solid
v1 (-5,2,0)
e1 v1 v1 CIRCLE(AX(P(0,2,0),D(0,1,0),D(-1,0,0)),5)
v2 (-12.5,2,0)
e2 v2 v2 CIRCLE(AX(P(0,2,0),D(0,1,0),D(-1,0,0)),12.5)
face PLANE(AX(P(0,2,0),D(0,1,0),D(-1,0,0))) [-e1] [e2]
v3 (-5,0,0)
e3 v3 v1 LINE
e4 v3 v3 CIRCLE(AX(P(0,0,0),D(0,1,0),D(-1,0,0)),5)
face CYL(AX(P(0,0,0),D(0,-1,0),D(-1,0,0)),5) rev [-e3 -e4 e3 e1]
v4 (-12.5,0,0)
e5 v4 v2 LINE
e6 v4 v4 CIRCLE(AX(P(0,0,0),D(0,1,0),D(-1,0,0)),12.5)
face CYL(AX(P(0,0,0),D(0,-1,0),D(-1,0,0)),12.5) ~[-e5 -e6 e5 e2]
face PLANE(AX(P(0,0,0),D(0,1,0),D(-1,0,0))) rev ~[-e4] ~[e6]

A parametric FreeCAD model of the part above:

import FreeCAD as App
import Part
import Sketcher
Q = App.Units.Quantity

doc = App.newDocument("Part")
params = doc.addObject("Spreadsheet::Sheet", "Params")
for row, (alias, value) in enumerate([
    ("sketch1_diameter", "25 mm"),
    ("sketch1_diameter2", "10 mm"),
    ("pad1_length", "2 mm"),
], start=1):
    params.set(f"A{row}", alias)
    params.set(f"B{row}", "=" + value)
    params.setAlias(f"B{row}", alias)

body = doc.addObject("PartDesign::Body", "Body")

# Sketch on XZ plane
sketch1 = body.newObject("Sketcher::SketchObject", "Sketch")
sketch1.AttachmentSupport = (doc.getObject("XZ_Plane"), [""])
sketch1.MapMode = "FlatFace"
sketch1.addGeometry([
    Part.Circle(App.Vector(0, 0, 0), App.Vector(0, 0, 1), 12),
    Part.Circle(App.Vector(0, 0, 0), App.Vector(0, 0, 1), 5),
], False)
sketch1.addConstraint([
    Sketcher.Constraint("Coincident", 0, 3, -1, 1),
    Sketcher.Constraint("Coincident", 1, 3, -1, 1),
    Sketcher.Constraint("Diameter", 0, Q("25 mm")),
    Sketcher.Constraint("Diameter", 1, Q("10 mm")),
])
sketch1.setExpression("Constraints[2]", "Params.sketch1_diameter")
sketch1.setExpression("Constraints[3]", "Params.sketch1_diameter2")
pad1 = body.newObject("PartDesign::Pad", "Pad")
pad1.Profile = sketch1
pad1.setExpression("Length", "Params.pad1_length")
pad1.Reversed = True

doc.recompute()
